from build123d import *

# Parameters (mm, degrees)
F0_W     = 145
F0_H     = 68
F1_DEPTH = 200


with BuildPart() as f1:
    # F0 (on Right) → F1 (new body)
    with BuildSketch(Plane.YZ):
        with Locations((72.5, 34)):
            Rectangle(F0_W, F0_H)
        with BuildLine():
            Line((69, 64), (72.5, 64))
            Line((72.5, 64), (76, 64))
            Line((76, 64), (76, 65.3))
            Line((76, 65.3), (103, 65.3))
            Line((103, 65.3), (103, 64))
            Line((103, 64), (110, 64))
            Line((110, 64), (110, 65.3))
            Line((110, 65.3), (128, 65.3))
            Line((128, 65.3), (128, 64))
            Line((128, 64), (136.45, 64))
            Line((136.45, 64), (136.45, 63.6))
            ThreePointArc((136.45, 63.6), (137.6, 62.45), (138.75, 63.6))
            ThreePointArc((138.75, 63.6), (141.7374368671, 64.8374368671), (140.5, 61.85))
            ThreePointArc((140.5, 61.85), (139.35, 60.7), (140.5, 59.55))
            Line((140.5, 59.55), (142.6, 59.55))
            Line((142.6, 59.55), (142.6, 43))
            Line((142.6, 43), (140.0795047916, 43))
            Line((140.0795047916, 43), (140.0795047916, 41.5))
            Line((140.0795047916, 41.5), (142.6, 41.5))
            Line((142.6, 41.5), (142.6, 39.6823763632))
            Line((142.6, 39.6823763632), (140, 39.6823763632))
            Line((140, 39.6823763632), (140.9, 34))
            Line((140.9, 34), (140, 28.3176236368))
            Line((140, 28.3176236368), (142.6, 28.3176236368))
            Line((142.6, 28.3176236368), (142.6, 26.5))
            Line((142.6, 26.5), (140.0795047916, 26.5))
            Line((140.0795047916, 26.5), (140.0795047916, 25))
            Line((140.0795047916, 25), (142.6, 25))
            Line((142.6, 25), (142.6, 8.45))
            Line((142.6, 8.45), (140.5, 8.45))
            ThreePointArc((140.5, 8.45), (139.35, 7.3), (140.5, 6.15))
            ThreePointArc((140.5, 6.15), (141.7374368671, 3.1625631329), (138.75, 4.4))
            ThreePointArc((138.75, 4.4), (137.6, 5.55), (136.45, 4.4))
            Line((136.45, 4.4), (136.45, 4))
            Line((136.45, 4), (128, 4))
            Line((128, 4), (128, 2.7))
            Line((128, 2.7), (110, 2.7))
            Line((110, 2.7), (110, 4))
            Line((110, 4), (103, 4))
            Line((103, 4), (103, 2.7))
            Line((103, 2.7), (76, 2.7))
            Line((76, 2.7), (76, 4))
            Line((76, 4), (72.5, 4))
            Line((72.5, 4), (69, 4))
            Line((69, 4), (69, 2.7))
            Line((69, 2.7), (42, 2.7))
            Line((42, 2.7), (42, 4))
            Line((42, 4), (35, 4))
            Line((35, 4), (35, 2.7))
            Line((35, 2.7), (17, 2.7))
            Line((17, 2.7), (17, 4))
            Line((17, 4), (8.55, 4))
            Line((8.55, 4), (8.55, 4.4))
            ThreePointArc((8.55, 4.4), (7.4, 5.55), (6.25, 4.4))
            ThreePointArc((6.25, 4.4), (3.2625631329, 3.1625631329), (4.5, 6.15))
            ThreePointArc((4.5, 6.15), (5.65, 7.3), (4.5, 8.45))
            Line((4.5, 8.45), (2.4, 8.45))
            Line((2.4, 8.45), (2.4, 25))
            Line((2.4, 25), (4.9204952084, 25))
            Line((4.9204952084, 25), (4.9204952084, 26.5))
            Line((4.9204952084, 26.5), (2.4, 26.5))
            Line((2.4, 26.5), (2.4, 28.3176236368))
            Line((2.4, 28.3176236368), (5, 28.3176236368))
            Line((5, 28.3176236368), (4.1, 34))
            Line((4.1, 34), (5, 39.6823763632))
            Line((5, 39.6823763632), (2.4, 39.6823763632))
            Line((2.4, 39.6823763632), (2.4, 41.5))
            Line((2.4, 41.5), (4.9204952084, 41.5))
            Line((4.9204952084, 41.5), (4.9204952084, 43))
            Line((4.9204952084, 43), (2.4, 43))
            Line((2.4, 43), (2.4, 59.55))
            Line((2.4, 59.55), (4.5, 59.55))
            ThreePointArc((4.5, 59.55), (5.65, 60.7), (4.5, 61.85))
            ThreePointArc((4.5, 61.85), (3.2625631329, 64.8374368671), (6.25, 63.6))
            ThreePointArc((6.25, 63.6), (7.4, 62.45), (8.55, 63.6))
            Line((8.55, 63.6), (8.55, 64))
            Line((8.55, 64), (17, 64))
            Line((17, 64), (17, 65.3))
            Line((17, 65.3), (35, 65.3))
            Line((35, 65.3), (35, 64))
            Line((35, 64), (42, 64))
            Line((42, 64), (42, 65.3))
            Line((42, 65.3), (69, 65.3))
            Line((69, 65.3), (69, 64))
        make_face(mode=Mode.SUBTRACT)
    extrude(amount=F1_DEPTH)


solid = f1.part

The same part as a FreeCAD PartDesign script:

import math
import FreeCAD as App
import Part
import Sketcher
Q = App.Units.Quantity


def add_polygon(sketch, points):
    """Adds a closed chain of lines whose ends are joined by coincident constraints."""
    first, n = sketch.GeometryCount, len(points)
    for a, b in zip(points, points[1:] + points[:1]):
        sketch.addGeometry(Part.LineSegment(App.Vector(*a, 0), App.Vector(*b, 0)), False)
    for i in range(n):
        sketch.addConstraint(Sketcher.Constraint("Coincident", first + i, 2, first + (i + 1) % n, 1))

doc = App.newDocument("Part")
body = doc.addObject("PartDesign::Body", "Body")

sketch1 = body.newObject("Sketcher::SketchObject", "Sketch")
sketch1.AttachmentSupport = (doc.getObject("YZ_Plane"), [""])
sketch1.MapMode = "FlatFace"
add_polygon(sketch1, [(0, 68), (0, 0), (145, 0), (145, 68)])
sketch1.addGeometry(Part.LineSegment(App.Vector(69, 65.3, 0), App.Vector(69, 64, 0)), False)
sketch1.addGeometry(Part.LineSegment(App.Vector(69, 64, 0), App.Vector(76, 64, 0)), False)
sketch1.addGeometry(Part.LineSegment(App.Vector(76, 64, 0), App.Vector(76, 65.3, 0)), False)
sketch1.addGeometry(Part.LineSegment(App.Vector(76, 65.3, 0), App.Vector(103, 65.3, 0)), False)
sketch1.addGeometry(Part.LineSegment(App.Vector(103, 65.3, 0), App.Vector(103, 64, 0)), False)
sketch1.addGeometry(Part.LineSegment(App.Vector(103, 64, 0), App.Vector(110, 64, 0)), False)
sketch1.addGeometry(Part.LineSegment(App.Vector(110, 64, 0), App.Vector(110, 65.3, 0)), False)
sketch1.addGeometry(Part.LineSegment(App.Vector(110, 65.3, 0), App.Vector(128, 65.3, 0)), False)
sketch1.addGeometry(Part.LineSegment(App.Vector(128, 65.3, 0), App.Vector(128, 64, 0)), False)
sketch1.addGeometry(Part.LineSegment(App.Vector(128, 64, 0), App.Vector(136.45, 64, 0)), False)
sketch1.addGeometry(Part.LineSegment(App.Vector(136.45, 64, 0), App.Vector(136.45, 63.6, 0)), False)
sketch1.addGeometry(Part.ArcOfCircle(Part.Circle(App.Vector(137.6, 63.6, 0), App.Vector(0, 0, 1), 1.15), math.radians(180), math.radians(360)), False)
sketch1.addGeometry(Part.ArcOfCircle(Part.Circle(App.Vector(140.5, 63.6, 0), App.Vector(0, 0, 1), 1.75), math.radians(-90), math.radians(180)), False)
sketch1.addGeometry(Part.ArcOfCircle(Part.Circle(App.Vector(140.5, 60.7, 0), App.Vector(0, 0, 1), 1.15), math.radians(90), math.radians(270)), False)
sketch1.addGeometry(Part.LineSegment(App.Vector(140.5, 59.55, 0), App.Vector(142.6, 59.55, 0)), False)
sketch1.addGeometry(Part.LineSegment(App.Vector(142.6, 59.55, 0), App.Vector(142.6, 43, 0)), False)
sketch1.addGeometry(Part.LineSegment(App.Vector(142.6, 43, 0), App.Vector(140.08, 43, 0)), False)
sketch1.addGeometry(Part.LineSegment(App.Vector(140.08, 43, 0), App.Vector(140.08, 41.5, 0)), False)
sketch1.addGeometry(Part.LineSegment(App.Vector(140.08, 41.5, 0), App.Vector(142.6, 41.5, 0)), False)
sketch1.addGeometry(Part.LineSegment(App.Vector(142.6, 41.5, 0), App.Vector(142.6, 39.68, 0)), False)
sketch1.addGeometry(Part.LineSegment(App.Vector(142.6, 39.68, 0), App.Vector(140, 39.68, 0)), False)
sketch1.addGeometry(Part.LineSegment(App.Vector(140, 39.68, 0), App.Vector(140.9, 34, 0)), False)
sketch1.addGeometry(Part.LineSegment(App.Vector(140.9, 34, 0), App.Vector(140, 28.32, 0)), False)
sketch1.addGeometry(Part.LineSegment(App.Vector(140, 28.32, 0), App.Vector(142.6, 28.32, 0)), False)
sketch1.addGeometry(Part.LineSegment(App.Vector(142.6, 28.32, 0), App.Vector(142.6, 26.5, 0)), False)
sketch1.addGeometry(Part.LineSegment(App.Vector(142.6, 26.5, 0), App.Vector(140.08, 26.5, 0)), False)
sketch1.addGeometry(Part.LineSegment(App.Vector(140.08, 26.5, 0), App.Vector(140.08, 25, 0)), False)
sketch1.addGeometry(Part.LineSegment(App.Vector(140.08, 25, 0), App.Vector(142.6, 25, 0)), False)
sketch1.addGeometry(Part.LineSegment(App.Vector(142.6, 25, 0), App.Vector(142.6, 8.45, 0)), False)
sketch1.addGeometry(Part.LineSegment(App.Vector(142.6, 8.45, 0), App.Vector(140.5, 8.45, 0)), False)
sketch1.addGeometry(Part.ArcOfCircle(Part.Circle(App.Vector(140.5, 7.3, 0), App.Vector(0, 0, 1), 1.15), math.radians(90), math.radians(270)), False)
sketch1.addGeometry(Part.ArcOfCircle(Part.Circle(App.Vector(140.5, 4.4, 0), App.Vector(0, 0, 1), 1.75), math.radians(180), math.radians(450)), False)
sketch1.addGeometry(Part.ArcOfCircle(Part.Circle(App.Vector(137.6, 4.4, 0), App.Vector(0, 0, 1), 1.15), math.radians(0), math.radians(180)), False)
sketch1.addGeometry(Part.LineSegment(App.Vector(136.45, 4.4, 0), App.Vector(136.45, 4, 0)), False)
sketch1.addGeometry(Part.LineSegment(App.Vector(136.45, 4, 0), App.Vector(128, 4, 0)), False)
sketch1.addGeometry(Part.LineSegment(App.Vector(128, 4, 0), App.Vector(128, 2.7, 0)), False)
sketch1.addGeometry(Part.LineSegment(App.Vector(128, 2.7, 0), App.Vector(110, 2.7, 0)), False)
sketch1.addGeometry(Part.LineSegment(App.Vector(110, 2.7, 0), App.Vector(110, 4, 0)), False)
sketch1.addGeometry(Part.LineSegment(App.Vector(110, 4, 0), App.Vector(103, 4, 0)), False)
sketch1.addGeometry(Part.LineSegment(App.Vector(103, 4, 0), App.Vector(103, 2.7, 0)), False)
sketch1.addGeometry(Part.LineSegment(App.Vector(103, 2.7, 0), App.Vector(76, 2.7, 0)), False)
sketch1.addGeometry(Part.LineSegment(App.Vector(76, 2.7, 0), App.Vector(76, 4, 0)), False)
sketch1.addGeometry(Part.LineSegment(App.Vector(76, 4, 0), App.Vector(69, 4, 0)), False)
sketch1.addGeometry(Part.LineSegment(App.Vector(69, 4, 0), App.Vector(69, 2.7, 0)), False)
sketch1.addGeometry(Part.LineSegment(App.Vector(69, 2.7, 0), App.Vector(42, 2.7, 0)), False)
sketch1.addGeometry(Part.LineSegment(App.Vector(42, 2.7, 0), App.Vector(42, 4, 0)), False)
sketch1.addGeometry(Part.LineSegment(App.Vector(42, 4, 0), App.Vector(35, 4, 0)), False)
sketch1.addGeometry(Part.LineSegment(App.Vector(35, 4, 0), App.Vector(35, 2.7, 0)), False)
sketch1.addGeometry(Part.LineSegment(App.Vector(35, 2.7, 0), App.Vector(17, 2.7, 0)), False)
sketch1.addGeometry(Part.LineSegment(App.Vector(17, 2.7, 0), App.Vector(17, 4, 0)), False)
sketch1.addGeometry(Part.LineSegment(App.Vector(17, 4, 0), App.Vector(8.55, 4, 0)), False)
sketch1.addGeometry(Part.LineSegment(App.Vector(8.55, 4, 0), App.Vector(8.55, 4.4, 0)), False)
sketch1.addGeometry(Part.ArcOfCircle(Part.Circle(App.Vector(7.4, 4.4, 0), App.Vector(0, 0, 1), 1.15), math.radians(0), math.radians(180)), False)
sketch1.addGeometry(Part.ArcOfCircle(Part.Circle(App.Vector(4.5, 4.4, 0), App.Vector(0, 0, 1), 1.75), math.radians(90), math.radians(360)), False)
sketch1.addGeometry(Part.ArcOfCircle(Part.Circle(App.Vector(4.5, 7.3, 0), App.Vector(0, 0, 1), 1.15), math.radians(-90), math.radians(90)), False)
sketch1.addGeometry(Part.LineSegment(App.Vector(4.5, 8.45, 0), App.Vector(2.4, 8.45, 0)), False)
sketch1.addGeometry(Part.LineSegment(App.Vector(2.4, 8.45, 0), App.Vector(2.4, 25, 0)), False)
sketch1.addGeometry(Part.LineSegment(App.Vector(2.4, 25, 0), App.Vector(4.92, 25, 0)), False)
sketch1.addGeometry(Part.LineSegment(App.Vector(4.92, 25, 0), App.Vector(4.92, 26.5, 0)), False)
sketch1.addGeometry(Part.LineSegment(App.Vector(4.92, 26.5, 0), App.Vector(2.4, 26.5, 0)), False)
sketch1.addGeometry(Part.LineSegment(App.Vector(2.4, 26.5, 0), App.Vector(2.4, 28.32, 0)), False)
sketch1.addGeometry(Part.LineSegment(App.Vector(2.4, 28.32, 0), App.Vector(5, 28.32, 0)), False)
sketch1.addGeometry(Part.LineSegment(App.Vector(5, 28.32, 0), App.Vector(4.1, 34, 0)), False)
sketch1.addGeometry(Part.LineSegment(App.Vector(4.1, 34, 0), App.Vector(5, 39.68, 0)), False)
sketch1.addGeometry(Part.LineSegment(App.Vector(5, 39.68, 0), App.Vector(2.4, 39.68, 0)), False)
sketch1.addGeometry(Part.LineSegment(App.Vector(2.4, 39.68, 0), App.Vector(2.4, 41.5, 0)), False)
sketch1.addGeometry(Part.LineSegment(App.Vector(2.4, 41.5, 0), App.Vector(4.92, 41.5, 0)), False)
sketch1.addGeometry(Part.LineSegment(App.Vector(4.92, 41.5, 0), App.Vector(4.92, 43, 0)), False)
sketch1.addGeometry(Part.LineSegment(App.Vector(4.92, 43, 0), App.Vector(2.4, 43, 0)), False)
sketch1.addGeometry(Part.LineSegment(App.Vector(2.4, 43, 0), App.Vector(2.4, 59.55, 0)), False)
sketch1.addGeometry(Part.LineSegment(App.Vector(2.4, 59.55, 0), App.Vector(4.5, 59.55, 0)), False)
sketch1.addGeometry(Part.ArcOfCircle(Part.Circle(App.Vector(4.5, 60.7, 0), App.Vector(0, 0, 1), 1.15), math.radians(-90), math.radians(90)), False)
sketch1.addGeometry(Part.ArcOfCircle(Part.Circle(App.Vector(4.5, 63.6, 0), App.Vector(0, 0, 1), 1.75), math.radians(0), math.radians(270)), False)
sketch1.addGeometry(Part.ArcOfCircle(Part.Circle(App.Vector(7.4, 63.6, 0), App.Vector(0, 0, 1), 1.15), math.radians(180), math.radians(360)), False)
sketch1.addGeometry(Part.LineSegment(App.Vector(8.55, 63.6, 0), App.Vector(8.55, 64, 0)), False)
sketch1.addGeometry(Part.LineSegment(App.Vector(8.55, 64, 0), App.Vector(17, 64, 0)), False)
sketch1.addGeometry(Part.LineSegment(App.Vector(17, 64, 0), App.Vector(17, 65.3, 0)), False)
sketch1.addGeometry(Part.LineSegment(App.Vector(17, 65.3, 0), App.Vector(35, 65.3, 0)), False)
sketch1.addGeometry(Part.LineSegment(App.Vector(35, 65.3, 0), App.Vector(35, 64, 0)), False)
sketch1.addGeometry(Part.LineSegment(App.Vector(35, 64, 0), App.Vector(42, 64, 0)), False)
sketch1.addGeometry(Part.LineSegment(App.Vector(42, 64, 0), App.Vector(42, 65.3, 0)), False)
sketch1.addGeometry(Part.LineSegment(App.Vector(42, 65.3, 0), App.Vector(69, 65.3, 0)), False)
sketch1.addConstraint([
    Sketcher.Constraint("Coincident", 4, 2, 5, 1),
    Sketcher.Constraint("Coincident", 5, 2, 6, 1),
    Sketcher.Constraint("Coincident", 6, 2, 7, 1),
    Sketcher.Constraint("Coincident", 7, 2, 8, 1),
    Sketcher.Constraint("Coincident", 8, 2, 9, 1),
    Sketcher.Constraint("Coincident", 9, 2, 10, 1),
    Sketcher.Constraint("Coincident", 10, 2, 11, 1),
    Sketcher.Constraint("Coincident", 11, 2, 12, 1),
    Sketcher.Constraint("Coincident", 12, 2, 13, 1),
    Sketcher.Constraint("Coincident", 13, 2, 14, 1),
    Sketcher.Constraint("Tangent", 14, 2, 15, 1),
    Sketcher.Constraint("Tangent", 15, 2, 16, 2),
    Sketcher.Constraint("Tangent", 16, 1, 17, 1),
    Sketcher.Constraint("Tangent", 17, 2, 18, 1),
    Sketcher.Constraint("Coincident", 18, 2, 19, 1),
    Sketcher.Constraint("Coincident", 19, 2, 20, 1),
    Sketcher.Constraint("Coincident", 20, 2, 21, 1),
    Sketcher.Constraint("Coincident", 21, 2, 22, 1),
    Sketcher.Constraint("Coincident", 22, 2, 23, 1),
    Sketcher.Constraint("Coincident", 23, 2, 24, 1),
    Sketcher.Constraint("Coincident", 24, 2, 25, 1),
    Sketcher.Constraint("Coincident", 25, 2, 26, 1),
    Sketcher.Constraint("Coincident", 26, 2, 27, 1),
    Sketcher.Constraint("Coincident", 27, 2, 28, 1),
    Sketcher.Constraint("Coincident", 28, 2, 29, 1),
    Sketcher.Constraint("Coincident", 29, 2, 30, 1),
    Sketcher.Constraint("Coincident", 30, 2, 31, 1),
    Sketcher.Constraint("Coincident", 31, 2, 32, 1),
    Sketcher.Constraint("Coincident", 32, 2, 33, 1),
    Sketcher.Constraint("Tangent", 33, 2, 34, 1),
    Sketcher.Constraint("Tangent", 34, 2, 35, 2),
    Sketcher.Constraint("Tangent", 35, 1, 36, 1),
    Sketcher.Constraint("Tangent", 36, 2, 37, 1),
    Sketcher.Constraint("Coincident", 37, 2, 38, 1),
    Sketcher.Constraint("Coincident", 38, 2, 39, 1),
    Sketcher.Constraint("Coincident", 39, 2, 40, 1),
    Sketcher.Constraint("Coincident", 40, 2, 41, 1),
    Sketcher.Constraint("Coincident", 41, 2, 42, 1),
    Sketcher.Constraint("Coincident", 42, 2, 43, 1),
    Sketcher.Constraint("Coincident", 43, 2, 44, 1),
    Sketcher.Constraint("Coincident", 44, 2, 45, 1),
    Sketcher.Constraint("Coincident", 45, 2, 46, 1),
    Sketcher.Constraint("Coincident", 46, 2, 47, 1),
    Sketcher.Constraint("Coincident", 47, 2, 48, 1),
    Sketcher.Constraint("Coincident", 48, 2, 49, 1),
    Sketcher.Constraint("Coincident", 49, 2, 50, 1),
    Sketcher.Constraint("Coincident", 50, 2, 51, 1),
    Sketcher.Constraint("Coincident", 51, 2, 52, 1),
    Sketcher.Constraint("Coincident", 52, 2, 53, 1),
    Sketcher.Constraint("Coincident", 53, 2, 54, 1),
    Sketcher.Constraint("Coincident", 54, 2, 55, 1),
    Sketcher.Constraint("Tangent", 55, 2, 56, 1),
    Sketcher.Constraint("Tangent", 56, 2, 57, 2),
    Sketcher.Constraint("Tangent", 57, 1, 58, 1),
    Sketcher.Constraint("Tangent", 58, 2, 59, 1),
    Sketcher.Constraint("Coincident", 59, 2, 60, 1),
    Sketcher.Constraint("Coincident", 60, 2, 61, 1),
    Sketcher.Constraint("Coincident", 61, 2, 62, 1),
    Sketcher.Constraint("Coincident", 62, 2, 63, 1),
    Sketcher.Constraint("Coincident", 63, 2, 64, 1),
    Sketcher.Constraint("Coincident", 64, 2, 65, 1),
    Sketcher.Constraint("Coincident", 65, 2, 66, 1),
    Sketcher.Constraint("Coincident", 66, 2, 67, 1),
    Sketcher.Constraint("Coincident", 67, 2, 68, 1),
    Sketcher.Constraint("Coincident", 68, 2, 69, 1),
    Sketcher.Constraint("Coincident", 69, 2, 70, 1),
    Sketcher.Constraint("Coincident", 70, 2, 71, 1),
    Sketcher.Constraint("Coincident", 71, 2, 72, 1),
    Sketcher.Constraint("Coincident", 72, 2, 73, 1),
    Sketcher.Constraint("Coincident", 73, 2, 74, 1),
    Sketcher.Constraint("Tangent", 74, 2, 75, 1),
    Sketcher.Constraint("Tangent", 75, 2, 76, 2),
    Sketcher.Constraint("Tangent", 76, 1, 77, 1),
    Sketcher.Constraint("Tangent", 77, 2, 78, 1),
    Sketcher.Constraint("Coincident", 78, 2, 79, 1),
    Sketcher.Constraint("Coincident", 79, 2, 80, 1),
    Sketcher.Constraint("Coincident", 80, 2, 81, 1),
    Sketcher.Constraint("Coincident", 81, 2, 82, 1),
    Sketcher.Constraint("Coincident", 82, 2, 83, 1),
    Sketcher.Constraint("Coincident", 83, 2, 84, 1),
    Sketcher.Constraint("Coincident", 84, 2, 85, 1),
    Sketcher.Constraint("Coincident", 85, 2, 4, 1),
    Sketcher.Constraint("Vertical", 0),
    Sketcher.Constraint("Horizontal", 1),
    Sketcher.Constraint("Vertical", 2),
    Sketcher.Constraint("Horizontal", 3),
    Sketcher.Constraint("Vertical", 4),
    Sketcher.Constraint("Horizontal", 5),
    Sketcher.Constraint("Vertical", 6),
    Sketcher.Constraint("Horizontal", 7),
    Sketcher.Constraint("Vertical", 8),
    Sketcher.Constraint("Horizontal", 9),
    Sketcher.Constraint("Vertical", 10),
    Sketcher.Constraint("Horizontal", 11),
    Sketcher.Constraint("Vertical", 12),
    Sketcher.Constraint("Horizontal", 13),
    Sketcher.Constraint("Vertical", 14),
    Sketcher.Constraint("Horizontal", 18),
    Sketcher.Constraint("Vertical", 19),
    Sketcher.Constraint("Horizontal", 20),
    Sketcher.Constraint("Vertical", 21),
    Sketcher.Constraint("Horizontal", 22),
    Sketcher.Constraint("Vertical", 23),
    Sketcher.Constraint("Horizontal", 24),
    Sketcher.Constraint("Horizontal", 27),
    Sketcher.Constraint("Vertical", 28),
    Sketcher.Constraint("Horizontal", 29),
    Sketcher.Constraint("Vertical", 30),
    Sketcher.Constraint("Horizontal", 31),
    Sketcher.Constraint("Vertical", 32),
    Sketcher.Constraint("Horizontal", 33),
    Sketcher.Constraint("Vertical", 37),
    Sketcher.Constraint("Horizontal", 38),
    Sketcher.Constraint("Vertical", 39),
    Sketcher.Constraint("Horizontal", 40),
    Sketcher.Constraint("Vertical", 41),
    Sketcher.Constraint("Horizontal", 42),
    Sketcher.Constraint("Vertical", 43),
    Sketcher.Constraint("Horizontal", 44),
    Sketcher.Constraint("Vertical", 45),
    Sketcher.Constraint("Horizontal", 46),
    Sketcher.Constraint("Vertical", 47),
    Sketcher.Constraint("Horizontal", 48),
    Sketcher.Constraint("Vertical", 49),
    Sketcher.Constraint("Horizontal", 50),
    Sketcher.Constraint("Vertical", 51),
    Sketcher.Constraint("Horizontal", 52),
    Sketcher.Constraint("Vertical", 53),
    Sketcher.Constraint("Horizontal", 54),
    Sketcher.Constraint("Vertical", 55),
    Sketcher.Constraint("Horizontal", 59),
    Sketcher.Constraint("Vertical", 60),
    Sketcher.Constraint("Horizontal", 61),
    Sketcher.Constraint("Vertical", 62),
    Sketcher.Constraint("Horizontal", 63),
    Sketcher.Constraint("Vertical", 64),
    Sketcher.Constraint("Horizontal", 65),
    Sketcher.Constraint("Horizontal", 68),
    Sketcher.Constraint("Vertical", 69),
    Sketcher.Constraint("Horizontal", 70),
    Sketcher.Constraint("Vertical", 71),
    Sketcher.Constraint("Horizontal", 72),
    Sketcher.Constraint("Vertical", 73),
    Sketcher.Constraint("Horizontal", 74),
    Sketcher.Constraint("Vertical", 78),
    Sketcher.Constraint("Horizontal", 79),
    Sketcher.Constraint("Vertical", 80),
    Sketcher.Constraint("Horizontal", 81),
    Sketcher.Constraint("Vertical", 82),
    Sketcher.Constraint("Horizontal", 83),
    Sketcher.Constraint("Vertical", 84),
    Sketcher.Constraint("Horizontal", 85),
    Sketcher.Constraint("Coincident", 0, 2, -1, 1),
    Sketcher.Constraint("Equal", 15, 17),
    Sketcher.Constraint("Equal", 17, 34),
    Sketcher.Constraint("Equal", 16, 35),
    Sketcher.Constraint("Equal", 34, 36),
    Sketcher.Constraint("Equal", 36, 56),
    Sketcher.Constraint("Equal", 35, 57),
    Sketcher.Constraint("Equal", 56, 58),
    Sketcher.Constraint("Equal", 58, 75),
    Sketcher.Constraint("Equal", 57, 76),
    Sketcher.Constraint("Equal", 75, 77),
    Sketcher.Constraint("Parallel", 25, 66),
    Sketcher.Constraint("Parallel", 26, 67),
    Sketcher.Constraint("Horizontal", 15, 3, 16, 3),
    Sketcher.Constraint("Horizontal", 35, 3, 36, 3),
    Sketcher.Constraint("Horizontal", 36, 3, 56, 3),
    Sketcher.Constraint("Horizontal", 56, 3, 57, 3),
    Sketcher.Constraint("Horizontal", 17, 3, 75, 3),
    Sketcher.Constraint("Horizontal", 76, 3, 77, 3),
    Sketcher.Constraint("Horizontal", 5, 2, 8, 2),
    Sketcher.Constraint("Horizontal", 7, 2, 10, 2),
    Sketcher.Constraint("Horizontal", 9, 2, 12, 2),
    Sketcher.Constraint("Horizontal", 38, 2, 41, 2),
    Sketcher.Constraint("Horizontal", 40, 2, 43, 2),
    Sketcher.Constraint("Horizontal", 42, 2, 45, 2),
    Sketcher.Constraint("Horizontal", 44, 2, 47, 2),
    Sketcher.Constraint("Horizontal", 46, 2, 49, 2),
    Sketcher.Constraint("Horizontal", 48, 2, 51, 2),
    Sketcher.Constraint("Horizontal", 50, 2, 53, 2),
    Sketcher.Constraint("Horizontal", 31, 2, 60, 2),
    Sketcher.Constraint("Horizontal", 29, 2, 62, 2),
    Sketcher.Constraint("Horizontal", 27, 2, 64, 2),
    Sketcher.Constraint("Horizontal", 25, 2, 66, 2),
    Sketcher.Constraint("Horizontal", 24, 2, 67, 2),
    Sketcher.Constraint("Horizontal", 22, 2, 69, 2),
    Sketcher.Constraint("Horizontal", 20, 2, 71, 2),
    Sketcher.Constraint("Horizontal", 13, 2, 78, 2),
    Sketcher.Constraint("Horizontal", 11, 2, 80, 2),
    Sketcher.Constraint("Horizontal", 79, 2, 82, 2),
    Sketcher.Constraint("Horizontal", 81, 2, 84, 2),
    Sketcher.Constraint("Vertical", 16, 3, 17, 3),
    Sketcher.Constraint("Vertical", 17, 3, 34, 3),
    Sketcher.Constraint("Vertical", 34, 3, 35, 3),
    Sketcher.Constraint("Vertical", 57, 3, 58, 3),
    Sketcher.Constraint("Vertical", 58, 3, 75, 3),
    Sketcher.Constraint("Vertical", 75, 3, 76, 3),
    Sketcher.Constraint("Vertical", 19, 2, 22, 2),
    Sketcher.Constraint("Vertical", 24, 2, 26, 2),
    Sketcher.Constraint("Vertical", 23, 2, 27, 2),
    Sketcher.Constraint("Vertical", 21, 2, 29, 2),
    Sketcher.Constraint("Vertical", 28, 2, 31, 2),
    Sketcher.Constraint("Vertical", 12, 2, 38, 2),
    Sketcher.Constraint("Vertical", 10, 2, 40, 2),
    Sketcher.Constraint("Vertical", 8, 2, 42, 2),
    Sketcher.Constraint("Vertical", 6, 2, 44, 2),
    Sketcher.Constraint("Vertical", 4, 2, 46, 2),
    Sketcher.Constraint("Vertical", 60, 2, 63, 2),
    Sketcher.Constraint("Vertical", 65, 2, 67, 2),
    Sketcher.Constraint("Vertical", 64, 2, 68, 2),
    Sketcher.Constraint("Vertical", 62, 2, 70, 2),
    Sketcher.Constraint("Vertical", 69, 2, 72, 2),
    Sketcher.Constraint("Vertical", 53, 2, 79, 2),
    Sketcher.Constraint("Vertical", 51, 2, 81, 2),
    Sketcher.Constraint("Vertical", 49, 2, 83, 2),
    Sketcher.Constraint("Equal", 5, 9),
    Sketcher.Constraint("Equal", 44, 48),
    Sketcher.Constraint("Equal", 46, 50),
    Sketcher.Constraint("Equal", 40, 52),
    Sketcher.Constraint("Equal", 38, 54),
    Sketcher.Constraint("Equal", 33, 59),
    Sketcher.Constraint("Equal", 31, 61),
    Sketcher.Constraint("Equal", 27, 65),
    Sketcher.Constraint("Equal", 23, 28),
    Sketcher.Constraint("Equal", 21, 30),
    Sketcher.Constraint("Equal", 19, 32),
    Sketcher.Constraint("Equal", 14, 37),
    Sketcher.Constraint("Equal", 12, 39),
    Sketcher.Constraint("DistanceX", 1, 1, 1, 2, 145.0),
    Sketcher.Constraint("DistanceX", 5, 1, 5, 2, 7.0),
    Sketcher.Constraint("DistanceX", 7, 1, 7, 2, 27.0),
    Sketcher.Constraint("DistanceX", 11, 1, 11, 2, 18.0),
    Sketcher.Constraint("DistanceY", 0, 2, 0, 1, 68.0),
    Sketcher.Constraint("Angle", 25, Q("-81 deg")),
    Sketcher.Constraint("Radius", 15, 1.15),
    Sketcher.Constraint("Radius", 16, 1.75),
    Sketcher.Constraint("DistanceX", 18, 1, 18, 2, 2.1),
    Sketcher.Constraint("DistanceX", 24, 2, 24, 1, 2.6),
    Sketcher.Constraint("DistanceY", 4, 2, 4, 1, 1.3),
    Sketcher.Constraint("DistanceY", 14, 2, 14, 1, 0.4),
    Sketcher.Constraint("DistanceY", 21, 2, 21, 1, 1.5),
    Sketcher.Constraint("DistanceX", -1, 1, 4, 2, 69.0),
    Sketcher.Constraint("DistanceY", -1, 1, 4, 2, 64.0),
    Sketcher.Constraint("DistanceY", -1, 1, 19, 2, 43.0),
    Sketcher.Constraint("DistanceX", -1, 1, 24, 2, 140.0),
    Sketcher.Constraint("DistanceY", -1, 1, 25, 2, 34.0),
    Sketcher.Constraint("DistanceX", -1, 1, 25, 2, 140.9),
    Sketcher.Constraint("DistanceX", 20, 2, 20, 1, 2.520495),
])
pad1 = body.newObject("PartDesign::Pad", "Pad")
pad1.Profile = sketch1
pad1.Length = 200

doc.recompute()
